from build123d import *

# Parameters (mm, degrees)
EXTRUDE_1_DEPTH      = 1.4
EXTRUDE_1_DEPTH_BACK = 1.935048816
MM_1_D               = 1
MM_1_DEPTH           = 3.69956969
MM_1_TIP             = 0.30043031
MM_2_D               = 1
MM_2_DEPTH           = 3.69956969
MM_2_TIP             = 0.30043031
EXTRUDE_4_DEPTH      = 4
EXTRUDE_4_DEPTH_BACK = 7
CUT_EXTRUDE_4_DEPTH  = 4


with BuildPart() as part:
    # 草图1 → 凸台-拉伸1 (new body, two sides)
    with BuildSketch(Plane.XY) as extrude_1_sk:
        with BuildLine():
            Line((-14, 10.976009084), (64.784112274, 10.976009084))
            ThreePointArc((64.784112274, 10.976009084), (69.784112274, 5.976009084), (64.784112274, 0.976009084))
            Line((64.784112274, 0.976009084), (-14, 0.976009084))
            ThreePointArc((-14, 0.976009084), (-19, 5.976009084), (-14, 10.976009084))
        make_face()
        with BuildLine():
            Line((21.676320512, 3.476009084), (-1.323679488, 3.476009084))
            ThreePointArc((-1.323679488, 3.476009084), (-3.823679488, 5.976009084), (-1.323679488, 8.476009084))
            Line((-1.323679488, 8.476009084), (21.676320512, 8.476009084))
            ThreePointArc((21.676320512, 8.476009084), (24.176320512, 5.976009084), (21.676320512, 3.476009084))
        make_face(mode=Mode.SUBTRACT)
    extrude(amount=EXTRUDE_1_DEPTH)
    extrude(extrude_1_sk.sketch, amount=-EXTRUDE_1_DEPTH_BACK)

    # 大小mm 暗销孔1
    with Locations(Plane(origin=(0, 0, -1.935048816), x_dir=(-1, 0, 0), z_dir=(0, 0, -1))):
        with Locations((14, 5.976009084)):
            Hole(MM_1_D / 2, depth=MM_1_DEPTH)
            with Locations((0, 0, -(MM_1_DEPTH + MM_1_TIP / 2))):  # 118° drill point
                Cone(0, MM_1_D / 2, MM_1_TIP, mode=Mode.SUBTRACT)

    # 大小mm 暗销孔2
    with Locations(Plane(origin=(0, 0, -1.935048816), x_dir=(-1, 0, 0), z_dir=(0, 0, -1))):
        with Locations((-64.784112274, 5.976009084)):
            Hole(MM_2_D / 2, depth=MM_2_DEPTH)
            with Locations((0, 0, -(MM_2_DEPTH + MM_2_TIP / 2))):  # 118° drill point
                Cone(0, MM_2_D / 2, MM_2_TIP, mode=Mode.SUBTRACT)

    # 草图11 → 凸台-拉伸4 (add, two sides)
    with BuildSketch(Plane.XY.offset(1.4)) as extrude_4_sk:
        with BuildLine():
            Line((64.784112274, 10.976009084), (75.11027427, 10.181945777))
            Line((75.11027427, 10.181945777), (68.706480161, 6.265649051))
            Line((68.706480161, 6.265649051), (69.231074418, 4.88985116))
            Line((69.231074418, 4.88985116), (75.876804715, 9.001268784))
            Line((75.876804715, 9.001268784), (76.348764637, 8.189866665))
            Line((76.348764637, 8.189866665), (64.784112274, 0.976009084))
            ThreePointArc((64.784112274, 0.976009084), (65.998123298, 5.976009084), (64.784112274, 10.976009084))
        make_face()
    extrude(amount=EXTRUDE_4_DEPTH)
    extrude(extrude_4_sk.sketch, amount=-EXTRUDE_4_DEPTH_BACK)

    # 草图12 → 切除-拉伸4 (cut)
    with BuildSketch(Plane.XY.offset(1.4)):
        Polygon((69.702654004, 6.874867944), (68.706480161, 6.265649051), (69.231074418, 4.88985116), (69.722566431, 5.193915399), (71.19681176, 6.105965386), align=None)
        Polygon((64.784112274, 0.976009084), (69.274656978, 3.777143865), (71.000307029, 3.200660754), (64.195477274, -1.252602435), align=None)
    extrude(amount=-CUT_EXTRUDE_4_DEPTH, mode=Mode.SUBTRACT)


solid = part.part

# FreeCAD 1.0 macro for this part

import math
import FreeCAD as App
import Part
import Sketcher
from FreeCAD import Vector
Q = App.Units.Quantity


def add_polygon(sketch, points):
    """Adds a closed chain of lines whose ends are joined by coincident constraints."""
    first, n = sketch.GeometryCount, len(points)
    for a, b in zip(points, points[1:] + points[:1]):
        sketch.addGeometry(Part.LineSegment(App.Vector(*a, 0), App.Vector(*b, 0)), False)
    for i in range(n):
        sketch.addConstraint(Sketcher.Constraint("Coincident", first + i, 2, first + (i + 1) % n, 1))

doc = App.newDocument("Part")
body = doc.addObject("PartDesign::Body", "Body")

# Sketch on XY plane
sketch1 = body.newObject("Sketcher::SketchObject", "Sketch")
sketch1.AttachmentSupport = (doc.getObject("XY_Plane"), [""])
sketch1.MapMode = "FlatFace"
sketch1.addGeometry([
    Part.LineSegment(Vector(64.8, 11, 0), Vector(-14, 11, 0)),  # 0
    Part.ArcOfCircle(Part.Circle(Vector(-14, 6, 0), Vector(0, 0, 1), 5), math.radians(90), math.radians(270)),  # 1
    Part.LineSegment(Vector(-14, 1, 0), Vector(64.8, 1, 0)),  # 2
    Part.ArcOfCircle(Part.Circle(Vector(64.8, 6, 0), Vector(0, 0, 1), 5), math.radians(-90), math.radians(90)),  # 3
    Part.LineSegment(Vector(21.7, 3.5, 0), Vector(-1.3, 3.5, 0)),  # 4
    Part.ArcOfCircle(Part.Circle(Vector(-1.3, 6, 0), Vector(0, 0, 1), 2.5), math.radians(90), math.radians(270)),  # 5
    Part.LineSegment(Vector(-1.3, 8.5, 0), Vector(21.7, 8.5, 0)),  # 6
    Part.ArcOfCircle(Part.Circle(Vector(21.7, 6, 0), Vector(0, 0, 1), 2.5), math.radians(-90), math.radians(90)),  # 7
], False)
sketch1.addConstraint([
    Sketcher.Constraint("Tangent", 0, 2, 1, 1),
    Sketcher.Constraint("Tangent", 1, 2, 2, 1),
    Sketcher.Constraint("Tangent", 2, 2, 3, 1),
    Sketcher.Constraint("Tangent", 3, 2, 0, 1),
    Sketcher.Constraint("Tangent", 4, 2, 5, 2),
    Sketcher.Constraint("Tangent", 5, 1, 6, 1),
    Sketcher.Constraint("Tangent", 6, 2, 7, 2),
    Sketcher.Constraint("Tangent", 7, 1, 4, 1),
    Sketcher.Constraint("Horizontal", 0),
    Sketcher.Constraint("Horizontal", 2),
    Sketcher.Constraint("Horizontal", 4),
    Sketcher.Constraint("Horizontal", 6),
    Sketcher.Constraint("Horizontal", 3, 3, 5, 3),
    Sketcher.Constraint("Radius", 1, Q("5 mm")),
    Sketcher.Constraint("Radius", 5, Q("2.5 mm")),
    Sketcher.Constraint("DistanceX", 4, 2, 4, 1, Q("23 mm")),
    Sketcher.Constraint("DistanceX", 1, 3, -1, 1, Q("14 mm")),
    Sketcher.Constraint("DistanceX", 0, 2, 0, 1, Q("78.784112 mm")),
    Sketcher.Constraint("DistanceY", -1, 1, 1, 3, Q("5.976009 mm")),
    Sketcher.Constraint("DistanceX", 5, 3, -1, 1, Q("1.323679 mm")),
])
pad1 = body.newObject("PartDesign::Pad", "Pad")
pad1.Profile = sketch1
pad1.Type = "TwoLengths"
pad1.Length = 1.4
pad1.Length2 = 1.935049

# Sketch on XY plane
sketch2 = body.newObject("Sketcher::SketchObject", "Sketch001")
sketch2.AttachmentSupport = (doc.getObject("XY_Plane"), [""])
sketch2.MapMode = "FlatFace"
sketch2.AttachmentOffset = App.Placement(Vector(0, 0, -1.935049), App.Rotation())
sketch2.addGeometry(Part.Circle(Vector(-14, 6, 0), Vector(0, 0, 1), 0.5), False)
sketch2.addConstraint([
    Sketcher.Constraint("Diameter", 0, Q("1 mm")),
    Sketcher.Constraint("DistanceX", 0, 3, -1, 1, Q("14 mm")),
    Sketcher.Constraint("DistanceY", -1, 1, 0, 3, Q("5.976009 mm")),
])
doc.recompute()
hole = body.newObject("PartDesign::Hole", "Hole")
hole.Profile = sketch2
hole.ThreadType = "None"
hole.Diameter = 1
hole.DepthType = "Dimension"
hole.Depth = 3.69957
hole.DrillPoint = "Angled"
hole.DrillPointAngle = 118
hole.Reversed = True

# Sketch on XY plane
sketch3 = body.newObject("Sketcher::SketchObject", "Sketch002")
sketch3.AttachmentSupport = (doc.getObject("XY_Plane"), [""])
sketch3.MapMode = "FlatFace"
sketch3.AttachmentOffset = App.Placement(Vector(0, 0, -1.935049), App.Rotation())
sketch3.addGeometry(Part.Circle(Vector(64.8, 6, 0), Vector(0, 0, 1), 0.5), False)
sketch3.addConstraint([
    Sketcher.Constraint("Diameter", 0, Q("1 mm")),
    Sketcher.Constraint("DistanceY", -1, 1, 0, 3, Q("5.976009 mm")),
    Sketcher.Constraint("DistanceX", -1, 1, 0, 3, Q("64.784112 mm")),
])
doc.recompute()
hole2 = body.newObject("PartDesign::Hole", "Hole001")
hole2.Profile = sketch3
hole2.ThreadType = "None"
hole2.Diameter = 1
hole2.DepthType = "Dimension"
hole2.Depth = 3.69957
hole2.DrillPoint = "Angled"
hole2.DrillPointAngle = 118
hole2.Reversed = True

# Sketch on XY plane
sketch4 = body.newObject("Sketcher::SketchObject", "Sketch003")
sketch4.AttachmentSupport = (doc.getObject("XY_Plane"), [""])
sketch4.MapMode = "FlatFace"
sketch4.AttachmentOffset = App.Placement(Vector(0, 0, 1.4), App.Rotation())
sketch4.addGeometry([
    Part.LineSegment(Vector(75.1, 10.2, 0), Vector(64.8, 11, 0)),  # 0
    Part.ArcOfCircle(Part.Circle(Vector(55.1, 6, 0), Vector(0, 0, 1), 10.9), math.radians(-27), math.radians(27)),  # 1
    Part.LineSegment(Vector(64.8, 1, 0), Vector(76.3, 8.2, 0)),  # 2
    Part.LineSegment(Vector(76.3, 8.2, 0), Vector(75.9, 9, 0)),  # 3
    Part.LineSegment(Vector(75.9, 9, 0), Vector(69.2, 4.9, 0)),  # 4
    Part.LineSegment(Vector(69.2, 4.9, 0), Vector(68.7, 6.3, 0)),  # 5
    Part.LineSegment(Vector(68.7, 6.3, 0), Vector(75.1, 10.2, 0)),  # 6
], False)
sketch4.addConstraint([
    Sketcher.Constraint("Coincident", 0, 2, 1, 2),
    Sketcher.Constraint("Coincident", 1, 1, 2, 1),
    Sketcher.Constraint("Coincident", 2, 2, 3, 1),
    Sketcher.Constraint("Coincident", 3, 2, 4, 1),
    Sketcher.Constraint("Coincident", 4, 2, 5, 1),
    Sketcher.Constraint("Coincident", 5, 2, 6, 1),
    Sketcher.Constraint("Coincident", 6, 2, 0, 1),
    Sketcher.Constraint("Vertical", 0, 2, 1, 1),
    Sketcher.Constraint("DistanceY", 1, 3, 0, 2, Q("5 mm")),
    Sketcher.Constraint("Radius", 1, Q("10.903452 mm")),
    Sketcher.Constraint("DistanceX", 4, 2, 6, 2, Q("5.8792 mm")),
    Sketcher.Constraint("Distance", 0, Q("10.356648 mm")),
    Sketcher.Constraint("Distance", 3, Q("0.93868 mm")),
    Sketcher.Constraint("Distance", 5, Q("1.472419 mm")),
    Sketcher.Constraint("DistanceX", -1, 1, 1, 3, Q("55.094671 mm")),
    Sketcher.Constraint("DistanceY", -1, 1, 1, 3, Q("5.976009 mm")),
    Sketcher.Constraint("DistanceY", -1, 1, 3, 2, Q("9.001269 mm")),
    Sketcher.Constraint("DistanceY", -1, 1, 4, 2, Q("4.889851 mm")),
    Sketcher.Constraint("DistanceX", -1, 1, 5, 2, Q("68.70648 mm")),
    Sketcher.Constraint("DistanceY", -1, 1, 5, 2, Q("6.265649 mm")),
    Sketcher.Constraint("DistanceX", 3, 2, 2, 2, Q("0.47196 mm")),
    Sketcher.Constraint("DistanceX", 4, 2, 3, 2, Q("6.64573 mm")),
])
pad2 = body.newObject("PartDesign::Pad", "Pad001")
pad2.Profile = sketch4
pad2.Type = "TwoLengths"
pad2.Length = 4
pad2.Length2 = 7

# Sketch on XY plane
sketch5 = body.newObject("Sketcher::SketchObject", "Sketch004")
sketch5.AttachmentSupport = (doc.getObject("XY_Plane"), [""])
sketch5.MapMode = "FlatFace"
sketch5.AttachmentOffset = App.Placement(Vector(0, 0, 1.4), App.Rotation())
add_polygon(sketch5, [(69.7, 6.9), (68.7, 6.3), (69.2, 4.9), (69.7, 5.2), (71.2, 6.1)])  # lines 0-4
add_polygon(sketch5, [(69.3, 3.8), (64.8, 1), (64.2, -1.3), (71, 3.2)])  # lines 5-8
sketch5.addConstraint([
    Sketcher.Constraint("Parallel", 2, 3),
    Sketcher.Constraint("DistanceX", 5, 2, 3, 2, Q("6.412699 mm")),
    Sketcher.Constraint("Distance", 1, Q("1.472419 mm")),
    Sketcher.Constraint("Distance", 3, Q("1.733561 mm")),
    Sketcher.Constraint("Distance", 6, Q("2.305038 mm")),
    Sketcher.Constraint("Distance", 7, Q("8.132482 mm")),
    Sketcher.Constraint("DistanceX", -1, 1, 0, 2, Q("68.70648 mm")),
    Sketcher.Constraint("DistanceY", -1, 1, 0, 2, Q("6.265649 mm")),
    Sketcher.Constraint("DistanceY", -1, 1, 1, 2, Q("4.889851 mm")),
    Sketcher.Constraint("DistanceX", -1, 1, 3, 2, Q("71.196812 mm")),
    Sketcher.Constraint("DistanceY", -1, 1, 5, 2, Q("0.976009 mm")),
    Sketcher.Constraint("DistanceY", -1, 1, 7, 2, Q("3.200661 mm")),
    Sketcher.Constraint("DistanceY", 2, 2, 3, 2, Q("0.91205 mm")),
    Sketcher.Constraint("DistanceY", 0, 2, 4, 2, Q("0.609219 mm")),
    Sketcher.Constraint("DistanceX", 1, 2, 4, 2, Q("0.47158 mm")),
    Sketcher.Constraint("DistanceY", 6, 2, 5, 2, Q("2.228612 mm")),
    Sketcher.Constraint("DistanceX", 8, 2, 2, 2, Q("0.447909 mm")),
    Sketcher.Constraint("DistanceY", 8, 2, 2, 2, Q("1.416772 mm")),
])
pocket1 = body.newObject("PartDesign::Pocket", "Pocket")
pocket1.Profile = sketch5
pocket1.Length = 4

doc.recompute()
